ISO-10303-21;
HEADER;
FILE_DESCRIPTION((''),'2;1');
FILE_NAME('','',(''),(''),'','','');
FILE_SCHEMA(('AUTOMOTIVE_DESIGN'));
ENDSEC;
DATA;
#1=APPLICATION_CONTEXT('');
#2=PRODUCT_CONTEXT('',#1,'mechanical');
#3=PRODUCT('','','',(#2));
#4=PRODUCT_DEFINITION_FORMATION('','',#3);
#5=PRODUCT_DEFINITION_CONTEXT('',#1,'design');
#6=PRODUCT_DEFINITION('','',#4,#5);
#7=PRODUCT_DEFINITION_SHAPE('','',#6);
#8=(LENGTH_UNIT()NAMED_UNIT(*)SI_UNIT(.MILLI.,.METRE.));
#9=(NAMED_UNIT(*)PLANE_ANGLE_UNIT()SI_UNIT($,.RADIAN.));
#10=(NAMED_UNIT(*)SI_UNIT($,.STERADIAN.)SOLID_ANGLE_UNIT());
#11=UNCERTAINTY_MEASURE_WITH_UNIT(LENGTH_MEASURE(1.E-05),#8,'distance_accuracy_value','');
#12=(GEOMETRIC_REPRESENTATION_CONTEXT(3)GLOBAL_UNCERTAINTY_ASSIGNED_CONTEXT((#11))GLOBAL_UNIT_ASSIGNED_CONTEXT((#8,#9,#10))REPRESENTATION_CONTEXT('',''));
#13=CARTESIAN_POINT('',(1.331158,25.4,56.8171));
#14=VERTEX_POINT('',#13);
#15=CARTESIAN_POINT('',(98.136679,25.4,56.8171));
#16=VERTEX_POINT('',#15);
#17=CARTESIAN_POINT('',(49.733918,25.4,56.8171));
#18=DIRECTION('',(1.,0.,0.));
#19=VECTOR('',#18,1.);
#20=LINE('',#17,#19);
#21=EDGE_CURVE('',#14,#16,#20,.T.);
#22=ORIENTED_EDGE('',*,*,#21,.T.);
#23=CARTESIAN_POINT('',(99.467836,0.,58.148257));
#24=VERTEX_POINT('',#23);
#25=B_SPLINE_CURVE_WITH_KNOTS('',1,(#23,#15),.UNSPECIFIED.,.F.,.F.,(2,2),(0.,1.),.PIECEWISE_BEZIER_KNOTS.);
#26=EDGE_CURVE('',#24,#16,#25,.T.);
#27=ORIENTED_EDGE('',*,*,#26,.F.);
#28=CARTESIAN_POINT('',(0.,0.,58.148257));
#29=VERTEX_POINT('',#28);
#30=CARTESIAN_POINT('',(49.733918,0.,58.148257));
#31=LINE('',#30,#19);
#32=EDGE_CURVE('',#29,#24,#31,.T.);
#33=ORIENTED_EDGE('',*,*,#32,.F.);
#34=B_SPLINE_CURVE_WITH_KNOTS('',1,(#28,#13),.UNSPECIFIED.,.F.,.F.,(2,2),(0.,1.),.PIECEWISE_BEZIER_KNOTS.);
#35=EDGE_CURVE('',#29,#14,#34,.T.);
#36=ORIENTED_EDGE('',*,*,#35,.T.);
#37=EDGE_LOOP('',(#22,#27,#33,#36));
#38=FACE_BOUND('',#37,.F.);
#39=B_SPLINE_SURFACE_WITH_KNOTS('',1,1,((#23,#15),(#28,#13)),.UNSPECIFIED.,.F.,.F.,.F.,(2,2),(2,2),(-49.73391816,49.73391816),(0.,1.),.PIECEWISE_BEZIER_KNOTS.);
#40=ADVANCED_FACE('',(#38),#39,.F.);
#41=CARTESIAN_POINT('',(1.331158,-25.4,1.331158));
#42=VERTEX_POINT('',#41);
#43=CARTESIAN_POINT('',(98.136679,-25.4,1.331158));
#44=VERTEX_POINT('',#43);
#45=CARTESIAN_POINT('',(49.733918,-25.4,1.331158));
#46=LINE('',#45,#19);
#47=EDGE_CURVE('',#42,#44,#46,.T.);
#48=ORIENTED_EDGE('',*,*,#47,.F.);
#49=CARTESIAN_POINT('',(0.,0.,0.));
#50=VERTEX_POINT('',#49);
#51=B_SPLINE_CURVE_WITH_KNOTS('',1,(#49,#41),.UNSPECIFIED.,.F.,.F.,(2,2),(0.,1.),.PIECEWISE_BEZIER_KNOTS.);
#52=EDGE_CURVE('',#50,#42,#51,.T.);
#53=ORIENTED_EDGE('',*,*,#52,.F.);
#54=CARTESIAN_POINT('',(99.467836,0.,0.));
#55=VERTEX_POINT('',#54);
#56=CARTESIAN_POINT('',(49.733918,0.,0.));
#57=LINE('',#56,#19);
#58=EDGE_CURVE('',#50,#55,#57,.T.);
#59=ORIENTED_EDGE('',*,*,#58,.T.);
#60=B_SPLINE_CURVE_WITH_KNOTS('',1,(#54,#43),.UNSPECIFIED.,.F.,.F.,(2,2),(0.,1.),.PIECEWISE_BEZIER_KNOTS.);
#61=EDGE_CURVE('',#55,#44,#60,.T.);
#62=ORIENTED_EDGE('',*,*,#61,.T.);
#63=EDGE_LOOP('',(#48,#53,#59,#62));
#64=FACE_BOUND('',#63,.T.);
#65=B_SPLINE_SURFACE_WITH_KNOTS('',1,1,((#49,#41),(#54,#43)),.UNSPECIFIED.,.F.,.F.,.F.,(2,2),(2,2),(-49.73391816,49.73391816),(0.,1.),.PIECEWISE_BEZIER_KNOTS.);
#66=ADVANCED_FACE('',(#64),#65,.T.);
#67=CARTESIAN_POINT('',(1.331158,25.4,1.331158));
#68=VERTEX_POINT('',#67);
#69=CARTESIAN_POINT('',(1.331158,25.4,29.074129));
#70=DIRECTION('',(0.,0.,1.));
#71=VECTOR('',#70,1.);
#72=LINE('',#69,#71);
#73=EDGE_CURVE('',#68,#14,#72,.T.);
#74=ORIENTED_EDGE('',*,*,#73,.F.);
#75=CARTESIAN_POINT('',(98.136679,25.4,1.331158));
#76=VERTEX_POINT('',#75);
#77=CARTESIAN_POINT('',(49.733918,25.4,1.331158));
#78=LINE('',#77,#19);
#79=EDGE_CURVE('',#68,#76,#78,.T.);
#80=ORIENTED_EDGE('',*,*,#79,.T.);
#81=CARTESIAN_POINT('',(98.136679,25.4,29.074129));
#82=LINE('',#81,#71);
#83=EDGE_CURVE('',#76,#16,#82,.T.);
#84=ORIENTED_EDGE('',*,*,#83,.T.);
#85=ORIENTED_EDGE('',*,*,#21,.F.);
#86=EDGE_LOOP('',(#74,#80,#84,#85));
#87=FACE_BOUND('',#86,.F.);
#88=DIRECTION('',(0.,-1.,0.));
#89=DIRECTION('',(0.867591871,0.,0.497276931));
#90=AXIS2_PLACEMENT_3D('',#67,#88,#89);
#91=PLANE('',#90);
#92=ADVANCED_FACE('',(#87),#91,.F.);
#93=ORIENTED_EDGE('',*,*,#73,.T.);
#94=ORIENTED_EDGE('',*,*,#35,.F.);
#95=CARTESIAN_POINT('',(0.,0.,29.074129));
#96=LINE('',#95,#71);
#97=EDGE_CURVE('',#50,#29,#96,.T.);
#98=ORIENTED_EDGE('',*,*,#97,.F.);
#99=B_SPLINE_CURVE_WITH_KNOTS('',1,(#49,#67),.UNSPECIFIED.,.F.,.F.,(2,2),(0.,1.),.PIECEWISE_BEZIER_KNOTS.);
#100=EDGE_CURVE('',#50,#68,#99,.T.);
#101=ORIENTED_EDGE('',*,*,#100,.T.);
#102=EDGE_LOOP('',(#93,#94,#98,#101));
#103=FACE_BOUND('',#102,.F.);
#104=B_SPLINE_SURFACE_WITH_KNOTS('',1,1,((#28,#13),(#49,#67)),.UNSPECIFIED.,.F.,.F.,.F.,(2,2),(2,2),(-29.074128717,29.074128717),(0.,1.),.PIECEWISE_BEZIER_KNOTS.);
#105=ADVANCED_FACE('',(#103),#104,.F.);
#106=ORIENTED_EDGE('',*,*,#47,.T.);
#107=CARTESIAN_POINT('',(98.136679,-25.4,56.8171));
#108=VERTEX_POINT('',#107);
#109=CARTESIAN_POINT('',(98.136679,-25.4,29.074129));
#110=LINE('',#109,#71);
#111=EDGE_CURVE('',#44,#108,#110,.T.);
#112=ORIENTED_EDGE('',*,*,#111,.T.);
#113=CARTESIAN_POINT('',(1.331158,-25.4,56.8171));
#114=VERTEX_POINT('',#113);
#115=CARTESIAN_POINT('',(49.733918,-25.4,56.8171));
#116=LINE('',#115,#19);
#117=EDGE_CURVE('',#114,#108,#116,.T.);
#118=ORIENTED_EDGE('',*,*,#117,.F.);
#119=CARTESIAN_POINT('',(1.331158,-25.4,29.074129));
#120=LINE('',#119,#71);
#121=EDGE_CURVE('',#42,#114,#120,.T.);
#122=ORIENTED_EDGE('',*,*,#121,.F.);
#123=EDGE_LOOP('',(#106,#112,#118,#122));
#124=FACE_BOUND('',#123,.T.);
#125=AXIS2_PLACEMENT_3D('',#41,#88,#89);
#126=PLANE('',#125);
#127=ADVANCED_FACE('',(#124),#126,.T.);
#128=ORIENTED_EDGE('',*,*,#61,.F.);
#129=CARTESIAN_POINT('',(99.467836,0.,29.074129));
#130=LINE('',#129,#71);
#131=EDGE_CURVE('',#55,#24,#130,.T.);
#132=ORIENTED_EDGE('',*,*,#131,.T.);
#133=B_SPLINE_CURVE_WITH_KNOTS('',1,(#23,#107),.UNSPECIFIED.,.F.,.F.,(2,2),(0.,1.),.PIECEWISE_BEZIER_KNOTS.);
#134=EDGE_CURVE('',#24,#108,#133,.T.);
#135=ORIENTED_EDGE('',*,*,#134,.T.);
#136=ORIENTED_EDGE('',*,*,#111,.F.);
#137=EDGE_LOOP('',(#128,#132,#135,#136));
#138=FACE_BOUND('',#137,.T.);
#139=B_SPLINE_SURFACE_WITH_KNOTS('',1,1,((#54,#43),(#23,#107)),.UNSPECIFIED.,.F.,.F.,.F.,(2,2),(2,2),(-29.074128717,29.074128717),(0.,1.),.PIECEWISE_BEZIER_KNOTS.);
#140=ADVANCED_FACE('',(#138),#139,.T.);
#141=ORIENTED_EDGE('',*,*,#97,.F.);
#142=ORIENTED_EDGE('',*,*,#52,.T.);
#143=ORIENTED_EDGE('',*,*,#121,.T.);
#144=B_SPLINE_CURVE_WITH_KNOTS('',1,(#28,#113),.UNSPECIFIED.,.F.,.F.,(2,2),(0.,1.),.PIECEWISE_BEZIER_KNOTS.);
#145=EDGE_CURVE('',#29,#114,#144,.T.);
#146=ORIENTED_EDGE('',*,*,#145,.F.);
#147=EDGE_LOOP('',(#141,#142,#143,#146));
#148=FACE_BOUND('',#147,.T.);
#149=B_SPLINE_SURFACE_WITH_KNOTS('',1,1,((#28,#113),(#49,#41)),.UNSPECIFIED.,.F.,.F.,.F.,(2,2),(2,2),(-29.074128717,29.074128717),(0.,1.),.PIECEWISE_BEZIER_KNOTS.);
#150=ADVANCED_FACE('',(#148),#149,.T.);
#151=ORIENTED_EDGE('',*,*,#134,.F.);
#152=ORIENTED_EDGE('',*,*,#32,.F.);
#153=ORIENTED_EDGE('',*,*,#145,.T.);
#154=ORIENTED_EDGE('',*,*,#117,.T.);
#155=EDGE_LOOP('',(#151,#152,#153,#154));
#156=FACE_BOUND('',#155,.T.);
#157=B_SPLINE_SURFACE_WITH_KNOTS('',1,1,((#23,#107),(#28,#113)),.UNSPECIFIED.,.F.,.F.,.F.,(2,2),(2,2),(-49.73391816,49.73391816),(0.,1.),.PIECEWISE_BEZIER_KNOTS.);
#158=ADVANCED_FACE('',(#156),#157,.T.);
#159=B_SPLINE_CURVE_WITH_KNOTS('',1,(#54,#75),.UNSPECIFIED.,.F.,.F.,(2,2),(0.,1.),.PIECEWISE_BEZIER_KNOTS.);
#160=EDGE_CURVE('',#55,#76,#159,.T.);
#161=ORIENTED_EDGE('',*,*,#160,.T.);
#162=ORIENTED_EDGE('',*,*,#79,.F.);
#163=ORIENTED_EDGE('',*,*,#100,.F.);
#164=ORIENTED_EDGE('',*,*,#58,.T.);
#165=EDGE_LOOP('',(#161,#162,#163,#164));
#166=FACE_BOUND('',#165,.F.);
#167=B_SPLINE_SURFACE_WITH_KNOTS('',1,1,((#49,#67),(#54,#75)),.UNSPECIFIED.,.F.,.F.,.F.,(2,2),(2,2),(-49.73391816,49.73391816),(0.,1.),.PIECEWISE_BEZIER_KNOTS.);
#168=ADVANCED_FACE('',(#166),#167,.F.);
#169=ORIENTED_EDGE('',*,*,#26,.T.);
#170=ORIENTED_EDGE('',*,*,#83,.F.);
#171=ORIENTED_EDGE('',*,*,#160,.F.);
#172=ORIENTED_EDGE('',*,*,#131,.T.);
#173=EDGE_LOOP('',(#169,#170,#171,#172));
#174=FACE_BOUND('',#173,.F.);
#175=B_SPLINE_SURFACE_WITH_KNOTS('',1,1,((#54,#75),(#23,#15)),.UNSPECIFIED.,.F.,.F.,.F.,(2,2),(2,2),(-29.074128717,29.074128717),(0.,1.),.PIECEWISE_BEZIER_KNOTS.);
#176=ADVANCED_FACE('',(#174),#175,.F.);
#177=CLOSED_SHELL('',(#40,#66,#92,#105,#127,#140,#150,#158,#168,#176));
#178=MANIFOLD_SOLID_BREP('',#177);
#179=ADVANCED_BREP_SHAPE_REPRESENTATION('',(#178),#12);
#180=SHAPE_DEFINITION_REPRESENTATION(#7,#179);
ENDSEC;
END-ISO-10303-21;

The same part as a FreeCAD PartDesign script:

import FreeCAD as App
import Part
import Sketcher
Q = App.Units.Quantity

doc = App.newDocument("Part")
body = doc.addObject("PartDesign::Body", "Body")

sketch1 = body.newObject("Sketcher::SketchObject", "Sketch")
sketch1.AttachmentSupport = (doc.getObject("XZ_Plane"), [""])
sketch1.MapMode = "FlatFace"
sketch1.addGeometry(Part.LineSegment(App.Vector(0, 58.148257, 0), App.Vector(0, 0, 0)), False)
sketch1.addGeometry(Part.LineSegment(App.Vector(0, 0, 0), App.Vector(99.467836, 0, 0)), False)
sketch1.addGeometry(Part.LineSegment(App.Vector(99.467836, 0, 0), App.Vector(99.467836, 58.148257, 0)), False)
sketch1.addGeometry(Part.LineSegment(App.Vector(99.467836, 58.148257, 0), App.Vector(0, 58.148257, 0)), False)
sketch1.addConstraint(Sketcher.Constraint("Coincident", 0, 2, 1, 1))
sketch1.addConstraint(Sketcher.Constraint("Coincident", 1, 2, 2, 1))
sketch1.addConstraint(Sketcher.Constraint("Coincident", 2, 2, 3, 1))
sketch1.addConstraint(Sketcher.Constraint("Coincident", 3, 2, 0, 1))
sketch1.addConstraint(Sketcher.Constraint("Vertical", 0))
sketch1.addConstraint(Sketcher.Constraint("Horizontal", 1))
sketch1.addConstraint(Sketcher.Constraint("Vertical", 2))
sketch1.addConstraint(Sketcher.Constraint("Horizontal", 3))
sketch1.addConstraint(Sketcher.Constraint("Coincident", 0, 2, -1, 1))
sketch1.addConstraint(Sketcher.Constraint("DistanceX", 1, 1, 1, 2, Q("99.467836 mm")))
sketch1.addConstraint(Sketcher.Constraint("DistanceY", 0, 2, 0, 1, Q("58.148257 mm")))
pad1 = body.newObject("PartDesign::Pad", "Pad")
pad1.Profile = sketch1
pad1.Length = Q("2 in")
pad1.Midplane = True
pad1.TaperAngle = -3

doc.recompute()
